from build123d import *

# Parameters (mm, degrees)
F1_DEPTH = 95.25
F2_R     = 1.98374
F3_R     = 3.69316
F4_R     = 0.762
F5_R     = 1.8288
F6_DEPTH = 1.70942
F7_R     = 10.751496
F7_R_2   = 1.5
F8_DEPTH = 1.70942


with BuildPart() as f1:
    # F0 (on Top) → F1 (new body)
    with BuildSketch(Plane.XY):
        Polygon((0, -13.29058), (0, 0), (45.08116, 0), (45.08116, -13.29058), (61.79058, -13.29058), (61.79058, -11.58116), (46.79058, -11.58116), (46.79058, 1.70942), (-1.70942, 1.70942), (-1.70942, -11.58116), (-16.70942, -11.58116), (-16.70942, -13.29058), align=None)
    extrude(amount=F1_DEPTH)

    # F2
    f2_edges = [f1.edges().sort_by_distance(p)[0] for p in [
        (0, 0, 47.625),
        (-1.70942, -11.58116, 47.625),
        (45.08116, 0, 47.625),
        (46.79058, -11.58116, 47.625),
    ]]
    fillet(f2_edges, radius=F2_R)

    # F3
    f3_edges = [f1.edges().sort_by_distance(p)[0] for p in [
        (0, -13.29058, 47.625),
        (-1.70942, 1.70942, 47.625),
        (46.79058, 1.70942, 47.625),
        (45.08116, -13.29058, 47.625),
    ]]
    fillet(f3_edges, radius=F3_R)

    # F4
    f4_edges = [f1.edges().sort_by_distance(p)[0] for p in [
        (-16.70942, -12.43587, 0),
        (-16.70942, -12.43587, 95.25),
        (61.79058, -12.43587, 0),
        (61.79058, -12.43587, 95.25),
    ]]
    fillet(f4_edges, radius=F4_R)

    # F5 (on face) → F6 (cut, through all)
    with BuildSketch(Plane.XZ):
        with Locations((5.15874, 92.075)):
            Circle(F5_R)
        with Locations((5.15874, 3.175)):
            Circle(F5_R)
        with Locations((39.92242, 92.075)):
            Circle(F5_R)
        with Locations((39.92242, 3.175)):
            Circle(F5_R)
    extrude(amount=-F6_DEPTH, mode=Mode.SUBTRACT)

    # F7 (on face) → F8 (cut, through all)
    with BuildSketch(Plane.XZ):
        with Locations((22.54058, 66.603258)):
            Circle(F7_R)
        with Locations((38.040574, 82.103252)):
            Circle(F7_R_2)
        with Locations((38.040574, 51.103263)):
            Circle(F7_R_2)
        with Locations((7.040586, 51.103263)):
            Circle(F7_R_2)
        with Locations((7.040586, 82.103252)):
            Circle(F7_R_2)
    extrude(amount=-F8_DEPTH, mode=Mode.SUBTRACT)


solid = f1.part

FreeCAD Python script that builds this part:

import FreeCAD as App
import Part
import Sketcher

V = App.Vector


def edges_at(feature, points):
    """Names of the edges that pass closest to the given points."""
    edges = feature.Shape.Edges
    near = lambda p: min(range(len(edges)), key=lambda i: edges[i].distToShape(Part.Vertex(*p))[0])
    return sorted({f"Edge{near(p) + 1}" for p in points})

doc = App.newDocument("Part")
body = doc.addObject("PartDesign::Body", "Body")

sketch1 = doc.addObject("Sketcher::SketchObject", "Sketch")
body.addObject(sketch1)
sketch1.AttachmentSupport = (doc.XY_Plane, [""])
sketch1.MapMode = "FlatFace"
sketch1.addGeometry([
    Part.LineSegment(V(0, -13.3, 0), V(0, 0, 0)),
    Part.LineSegment(V(0, 0, 0), V(45.1, 0, 0)),
    Part.LineSegment(V(45.1, 0, 0), V(45.1, -13.3, 0)),
    Part.LineSegment(V(45.1, -13.3, 0), V(61.8, -13.3, 0)),
    Part.LineSegment(V(61.8, -13.3, 0), V(61.8, -11.6, 0)),
    Part.LineSegment(V(61.8, -11.6, 0), V(46.8, -11.6, 0)),
    Part.LineSegment(V(46.8, -11.6, 0), V(46.8, 1.7, 0)),
    Part.LineSegment(V(46.8, 1.7, 0), V(-1.7, 1.7, 0)),
    Part.LineSegment(V(-1.7, 1.7, 0), V(-1.7, -11.6, 0)),
    Part.LineSegment(V(-1.7, -11.6, 0), V(-16.7, -11.6, 0)),
    Part.LineSegment(V(-16.7, -11.6, 0), V(-16.7, -13.3, 0)),
    Part.LineSegment(V(-16.7, -13.3, 0), V(0, -13.3, 0)),
], False)
sketch1.addConstraint([
    Sketcher.Constraint("Coincident", 0, 2, 1, 1),
    Sketcher.Constraint("Coincident", 1, 2, 2, 1),
    Sketcher.Constraint("Coincident", 2, 2, 3, 1),
    Sketcher.Constraint("Coincident", 3, 2, 4, 1),
    Sketcher.Constraint("Coincident", 4, 2, 5, 1),
    Sketcher.Constraint("Coincident", 5, 2, 6, 1),
    Sketcher.Constraint("Coincident", 6, 2, 7, 1),
    Sketcher.Constraint("Coincident", 7, 2, 8, 1),
    Sketcher.Constraint("Coincident", 8, 2, 9, 1),
    Sketcher.Constraint("Coincident", 9, 2, 10, 1),
    Sketcher.Constraint("Coincident", 10, 2, 11, 1),
    Sketcher.Constraint("Coincident", 11, 2, 0, 1),
    Sketcher.Constraint("Vertical", 0),
    Sketcher.Constraint("Horizontal", 1),
    Sketcher.Constraint("Vertical", 2),
    Sketcher.Constraint("Horizontal", 3),
    Sketcher.Constraint("Vertical", 4),
    Sketcher.Constraint("Horizontal", 5),
    Sketcher.Constraint("Vertical", 6),
    Sketcher.Constraint("Horizontal", 7),
    Sketcher.Constraint("Vertical", 8),
    Sketcher.Constraint("Horizontal", 9),
    Sketcher.Constraint("Vertical", 10),
    Sketcher.Constraint("Horizontal", 11),
    Sketcher.Constraint("Coincident", 0, 2, -1, 1),
    Sketcher.Constraint("Horizontal", 5, 2, 8, 2),
    Sketcher.Constraint("Horizontal", 3, 2, 10, 2),
    Sketcher.Constraint("Equal", 5, 9),
    Sketcher.Constraint("Equal", 3, 11),
    Sketcher.Constraint("Equal", 2, 6),
    Sketcher.Constraint("DistanceX", 5, 2, 5, 1, 15.0),
    Sketcher.Constraint("DistanceX", 7, 2, 7, 1, 48.5),
    Sketcher.Constraint("DistanceY", 2, 2, 6, 2, 15.0),
    Sketcher.Constraint("DistanceX", 1, 1, 1, 2, 45.08116),
    Sketcher.Constraint("DistanceY", 0, 1, 0, 2, 13.29058),
])
pad1 = doc.addObject("PartDesign::Pad", "Pad")
body.addObject(pad1)
pad1.Profile = sketch1
pad1.Length = 95.25
doc.recompute()

fillet = doc.addObject("PartDesign::Fillet", "Fillet")
body.addObject(fillet)
fillet.Base = (pad1, edges_at(pad1, [
    (0, 0, 47.625),
    (-1.709, -11.581, 47.625),
    (45.081, 0, 47.625),
    (46.791, -11.581, 47.625),
]))
fillet.Radius = 1.98374
doc.recompute()

fillet2 = doc.addObject("PartDesign::Fillet", "Fillet001")
body.addObject(fillet2)
fillet2.Base = (fillet, edges_at(fillet, [
    (0, -13.291, 47.625),
    (-1.709, 1.709, 47.625),
    (46.791, 1.709, 47.625),
    (45.081, -13.291, 47.625),
]))
fillet2.Radius = 3.69316
doc.recompute()

fillet3 = doc.addObject("PartDesign::Fillet", "Fillet002")
body.addObject(fillet3)
fillet3.Base = (fillet2, edges_at(fillet2, [
    (-16.709, -12.436, 0),
    (-16.709, -12.436, 95.25),
    (61.791, -12.436, 0),
    (61.791, -12.436, 95.25),
]))
fillet3.Radius = 0.762

sketch2 = doc.addObject("Sketcher::SketchObject", "Sketch001")
body.addObject(sketch2)
sketch2.AttachmentSupport = (doc.XZ_Plane, [""])
sketch2.MapMode = "FlatFace"
sketch2.addGeometry([
    Part.Circle(V(5.2, 92.1, 0), V(0, 0, 1), 1.8),
    Part.Circle(V(5.2, 3.2, 0), V(0, 0, 1), 1.8),
    Part.Circle(V(39.9, 92.1, 0), V(0, 0, 1), 1.8),
    Part.Circle(V(39.9, 3.2, 0), V(0, 0, 1), 1.8),
], False)
sketch2.addConstraint([
    Sketcher.Constraint("Equal", 0, 1),
    Sketcher.Constraint("Equal", 1, 2),
    Sketcher.Constraint("Equal", 2, 3),
    Sketcher.Constraint("Horizontal", 0, 3, 2, 3),
    Sketcher.Constraint("Horizontal", 1, 3, 3, 3),
    Sketcher.Constraint("Vertical", 0, 3, 1, 3),
    Sketcher.Constraint("Vertical", 2, 3, 3, 3),
    Sketcher.Constraint("Diameter", 0, 3.6576),
    Sketcher.Constraint("DistanceY", 1, 3, 0, 3, 88.9),
    Sketcher.Constraint("DistanceY", -1, 1, 0, 3, 92.075),
    Sketcher.Constraint("DistanceX", -1, 1, 0, 3, 5.15874),
    Sketcher.Constraint("DistanceX", -1, 1, 2, 3, 39.92242),
])
pocket1 = doc.addObject("PartDesign::Pocket", "Pocket")
body.addObject(pocket1)
pocket1.Profile = sketch2
pocket1.Type = "ThroughAll"

sketch3 = doc.addObject("Sketcher::SketchObject", "Sketch002")
body.addObject(sketch3)
sketch3.AttachmentSupport = (doc.XZ_Plane, [""])
sketch3.MapMode = "FlatFace"
sketch3.addGeometry([
    Part.Circle(V(22.5, 66.6, 0), V(0, 0, 1), 10.8),
    Part.Circle(V(38, 82.1, 0), V(0, 0, 1), 1.5),
    Part.Circle(V(38, 51.1, 0), V(0, 0, 1), 1.5),
    Part.Circle(V(7, 51.1, 0), V(0, 0, 1), 1.5),
    Part.Circle(V(7, 82.1, 0), V(0, 0, 1), 1.5),
], False)
sketch3.addConstraint([
    Sketcher.Constraint("Equal", 1, 2),
    Sketcher.Constraint("Equal", 2, 3),
    Sketcher.Constraint("Equal", 3, 4),
    Sketcher.Constraint("Horizontal", 2, 3, 3, 3),
    Sketcher.Constraint("Horizontal", 1, 3, 4, 3),
    Sketcher.Constraint("Vertical", 1, 3, 2, 3),
    Sketcher.Constraint("Vertical", 3, 3, 4, 3),
    Sketcher.Constraint("Diameter", 1, 3.0),
    Sketcher.Constraint("Diameter", 0, 21.502992),
    Sketcher.Constraint("DistanceX", -1, 1, 0, 3, 22.54058),
    Sketcher.Constraint("DistanceY", -1, 1, 1, 3, 82.103252),
    Sketcher.Constraint("DistanceY", 2, 3, 1, 3, 30.999989),
    Sketcher.Constraint("DistanceY", -1, 1, 0, 3, 66.603258),
    Sketcher.Constraint("DistanceX", -1, 1, 1, 3, 38.040574),
    Sketcher.Constraint("DistanceX", -1, 1, 3, 3, 7.040586),
])
pocket2 = doc.addObject("PartDesign::Pocket", "Pocket001")
body.addObject(pocket2)
pocket2.Profile = sketch3
pocket2.Type = "ThroughAll"

doc.recompute()
